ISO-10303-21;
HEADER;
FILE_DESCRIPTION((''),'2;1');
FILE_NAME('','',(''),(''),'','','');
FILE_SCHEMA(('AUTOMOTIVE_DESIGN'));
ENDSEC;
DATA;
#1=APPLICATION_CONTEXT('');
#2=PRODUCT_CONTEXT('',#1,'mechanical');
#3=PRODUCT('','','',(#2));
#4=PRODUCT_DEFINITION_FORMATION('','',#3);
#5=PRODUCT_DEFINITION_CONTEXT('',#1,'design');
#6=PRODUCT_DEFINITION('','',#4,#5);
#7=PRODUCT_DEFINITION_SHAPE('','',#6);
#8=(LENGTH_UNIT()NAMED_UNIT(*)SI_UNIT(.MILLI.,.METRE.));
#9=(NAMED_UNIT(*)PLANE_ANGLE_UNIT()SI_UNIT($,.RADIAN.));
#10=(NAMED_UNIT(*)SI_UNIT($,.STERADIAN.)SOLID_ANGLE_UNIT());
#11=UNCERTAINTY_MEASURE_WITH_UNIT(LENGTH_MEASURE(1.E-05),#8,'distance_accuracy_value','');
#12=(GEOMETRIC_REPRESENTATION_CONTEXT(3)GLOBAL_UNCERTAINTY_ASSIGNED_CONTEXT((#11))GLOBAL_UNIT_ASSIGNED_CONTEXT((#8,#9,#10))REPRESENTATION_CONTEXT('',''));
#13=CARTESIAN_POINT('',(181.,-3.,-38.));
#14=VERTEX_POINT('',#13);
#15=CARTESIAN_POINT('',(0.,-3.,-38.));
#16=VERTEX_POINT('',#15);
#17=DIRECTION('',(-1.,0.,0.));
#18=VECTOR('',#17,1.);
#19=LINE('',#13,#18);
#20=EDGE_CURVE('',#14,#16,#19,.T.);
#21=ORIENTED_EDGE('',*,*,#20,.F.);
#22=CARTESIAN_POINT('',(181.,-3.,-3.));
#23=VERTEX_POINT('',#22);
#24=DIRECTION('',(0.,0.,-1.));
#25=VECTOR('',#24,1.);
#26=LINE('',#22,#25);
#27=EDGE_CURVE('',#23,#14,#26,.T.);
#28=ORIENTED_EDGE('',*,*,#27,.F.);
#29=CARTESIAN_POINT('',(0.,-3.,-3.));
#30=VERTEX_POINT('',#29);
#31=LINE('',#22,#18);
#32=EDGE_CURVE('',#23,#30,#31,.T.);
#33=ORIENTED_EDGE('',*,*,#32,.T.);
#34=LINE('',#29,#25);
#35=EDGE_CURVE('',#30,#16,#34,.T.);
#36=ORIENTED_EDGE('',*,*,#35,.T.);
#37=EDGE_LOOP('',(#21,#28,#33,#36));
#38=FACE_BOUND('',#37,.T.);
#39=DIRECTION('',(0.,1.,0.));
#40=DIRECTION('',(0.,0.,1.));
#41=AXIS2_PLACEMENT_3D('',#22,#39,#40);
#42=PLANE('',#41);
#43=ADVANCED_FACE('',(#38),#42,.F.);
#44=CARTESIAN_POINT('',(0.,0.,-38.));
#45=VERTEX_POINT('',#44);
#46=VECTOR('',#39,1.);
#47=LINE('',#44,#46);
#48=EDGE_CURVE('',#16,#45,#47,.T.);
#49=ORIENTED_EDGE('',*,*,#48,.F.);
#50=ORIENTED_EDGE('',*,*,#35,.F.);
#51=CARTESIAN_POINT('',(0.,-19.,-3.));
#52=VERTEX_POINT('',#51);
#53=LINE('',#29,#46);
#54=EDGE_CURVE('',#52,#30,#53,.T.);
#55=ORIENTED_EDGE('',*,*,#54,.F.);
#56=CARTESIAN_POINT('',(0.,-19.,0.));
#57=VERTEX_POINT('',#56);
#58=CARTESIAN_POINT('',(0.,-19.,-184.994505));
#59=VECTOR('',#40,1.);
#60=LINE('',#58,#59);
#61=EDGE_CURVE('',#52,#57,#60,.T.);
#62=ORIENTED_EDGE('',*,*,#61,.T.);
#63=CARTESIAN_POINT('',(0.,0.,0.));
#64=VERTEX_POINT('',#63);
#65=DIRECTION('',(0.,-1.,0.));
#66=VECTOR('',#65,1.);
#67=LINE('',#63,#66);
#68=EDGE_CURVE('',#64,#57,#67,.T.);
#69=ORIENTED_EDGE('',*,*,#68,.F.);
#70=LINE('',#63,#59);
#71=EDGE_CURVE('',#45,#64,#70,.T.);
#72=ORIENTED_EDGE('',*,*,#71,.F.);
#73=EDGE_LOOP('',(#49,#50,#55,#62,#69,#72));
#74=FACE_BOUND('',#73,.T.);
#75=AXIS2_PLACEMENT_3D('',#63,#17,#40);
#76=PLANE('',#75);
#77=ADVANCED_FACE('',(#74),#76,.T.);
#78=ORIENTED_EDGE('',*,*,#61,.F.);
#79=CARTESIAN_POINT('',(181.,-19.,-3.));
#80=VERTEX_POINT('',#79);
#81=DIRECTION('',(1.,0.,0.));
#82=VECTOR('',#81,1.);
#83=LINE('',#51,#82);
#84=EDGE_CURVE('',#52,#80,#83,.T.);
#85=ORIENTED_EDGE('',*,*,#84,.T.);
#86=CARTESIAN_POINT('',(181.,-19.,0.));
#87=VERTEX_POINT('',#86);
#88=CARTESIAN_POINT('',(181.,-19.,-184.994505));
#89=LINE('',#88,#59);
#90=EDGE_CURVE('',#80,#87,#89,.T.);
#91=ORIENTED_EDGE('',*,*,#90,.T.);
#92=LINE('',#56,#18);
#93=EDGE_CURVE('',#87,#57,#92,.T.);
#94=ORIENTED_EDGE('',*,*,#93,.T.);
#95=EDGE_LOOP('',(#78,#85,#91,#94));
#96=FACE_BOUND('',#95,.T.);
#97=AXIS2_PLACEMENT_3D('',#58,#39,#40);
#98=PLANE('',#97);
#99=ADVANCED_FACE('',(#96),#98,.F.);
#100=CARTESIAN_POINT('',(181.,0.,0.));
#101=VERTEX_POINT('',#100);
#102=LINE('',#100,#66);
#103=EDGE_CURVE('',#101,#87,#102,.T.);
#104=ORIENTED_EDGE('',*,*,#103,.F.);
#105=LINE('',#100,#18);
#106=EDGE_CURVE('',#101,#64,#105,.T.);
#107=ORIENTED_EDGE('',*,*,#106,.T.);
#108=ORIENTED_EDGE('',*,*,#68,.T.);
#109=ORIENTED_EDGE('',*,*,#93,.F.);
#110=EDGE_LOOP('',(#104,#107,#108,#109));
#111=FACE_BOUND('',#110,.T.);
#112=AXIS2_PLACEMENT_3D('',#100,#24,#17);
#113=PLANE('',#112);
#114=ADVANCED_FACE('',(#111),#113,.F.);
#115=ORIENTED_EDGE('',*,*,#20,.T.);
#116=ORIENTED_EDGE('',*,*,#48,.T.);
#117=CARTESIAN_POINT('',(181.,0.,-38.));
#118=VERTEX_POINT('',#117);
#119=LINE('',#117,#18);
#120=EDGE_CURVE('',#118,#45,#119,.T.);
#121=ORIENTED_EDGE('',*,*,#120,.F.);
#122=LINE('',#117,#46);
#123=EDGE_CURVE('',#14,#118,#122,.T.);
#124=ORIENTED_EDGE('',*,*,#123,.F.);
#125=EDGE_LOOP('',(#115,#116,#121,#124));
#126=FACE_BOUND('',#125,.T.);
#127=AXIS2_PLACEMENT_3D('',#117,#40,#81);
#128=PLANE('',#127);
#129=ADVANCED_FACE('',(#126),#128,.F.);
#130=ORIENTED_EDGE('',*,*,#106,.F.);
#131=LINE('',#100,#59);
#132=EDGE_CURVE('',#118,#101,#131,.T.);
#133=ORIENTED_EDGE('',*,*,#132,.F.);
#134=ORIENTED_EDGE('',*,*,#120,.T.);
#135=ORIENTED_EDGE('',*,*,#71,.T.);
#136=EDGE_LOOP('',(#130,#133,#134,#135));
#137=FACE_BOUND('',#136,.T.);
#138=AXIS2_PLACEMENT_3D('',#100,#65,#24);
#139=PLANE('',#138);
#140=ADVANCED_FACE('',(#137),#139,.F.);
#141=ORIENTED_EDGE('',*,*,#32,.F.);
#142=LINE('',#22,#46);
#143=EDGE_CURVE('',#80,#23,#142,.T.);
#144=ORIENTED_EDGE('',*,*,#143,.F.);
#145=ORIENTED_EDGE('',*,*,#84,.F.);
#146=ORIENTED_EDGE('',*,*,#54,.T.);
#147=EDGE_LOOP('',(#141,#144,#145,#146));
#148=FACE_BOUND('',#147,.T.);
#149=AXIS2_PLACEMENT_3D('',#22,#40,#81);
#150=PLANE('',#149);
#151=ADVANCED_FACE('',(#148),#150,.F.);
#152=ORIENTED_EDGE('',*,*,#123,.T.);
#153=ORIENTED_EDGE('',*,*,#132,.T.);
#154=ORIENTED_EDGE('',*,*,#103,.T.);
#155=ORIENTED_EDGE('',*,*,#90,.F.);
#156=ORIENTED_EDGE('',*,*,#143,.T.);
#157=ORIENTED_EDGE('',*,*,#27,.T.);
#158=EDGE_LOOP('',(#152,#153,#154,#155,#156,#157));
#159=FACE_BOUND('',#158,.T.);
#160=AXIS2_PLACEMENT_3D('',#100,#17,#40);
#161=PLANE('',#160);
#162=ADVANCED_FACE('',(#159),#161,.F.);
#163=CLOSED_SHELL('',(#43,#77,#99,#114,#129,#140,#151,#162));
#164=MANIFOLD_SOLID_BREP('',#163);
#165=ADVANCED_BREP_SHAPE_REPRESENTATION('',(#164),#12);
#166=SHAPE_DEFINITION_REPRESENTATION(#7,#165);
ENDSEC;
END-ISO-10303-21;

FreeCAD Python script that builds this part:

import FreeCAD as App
import Part
import Sketcher

V = App.Vector
Q = App.Units.Quantity


def add_polygon(sketch, points):
    """Adds a closed chain of lines whose ends are joined by coincident constraints."""
    first, n = sketch.GeometryCount, len(points)
    for a, b in zip(points, points[1:] + points[:1]):
        sketch.addGeometry(Part.LineSegment(App.Vector(*a, 0), App.Vector(*b, 0)), False)
    for i in range(n):
        sketch.addConstraint(Sketcher.Constraint("Coincident", first + i, 2, first + (i + 1) % n, 1))

doc = App.newDocument("Part")
body = doc.addObject("PartDesign::Body", "Body")

sketch1 = body.newObject("Sketcher::SketchObject", "Sketch")
sketch1.AttachmentSupport = (doc.getObject("YZ_Plane"), [""])
sketch1.MapMode = "FlatFace"
add_polygon(sketch1, [(0, 0), (-38, 0), (-38, -3), (-3, -3), (-3, -38), (0, -38)])
sketch1.addConstraint([
    Sketcher.Constraint("Horizontal", 0),
    Sketcher.Constraint("Vertical", 1),
    Sketcher.Constraint("Horizontal", 2),
    Sketcher.Constraint("Vertical", 3),
    Sketcher.Constraint("Horizontal", 4),
    Sketcher.Constraint("Vertical", 5),
    Sketcher.Constraint("Coincident", 5, 2, -1, 1),
    Sketcher.Constraint("Equal", 4, 1),
    Sketcher.Constraint("Equal", 2, 3),
    Sketcher.Constraint("DistanceX", 0, 2, 0, 1, Q("38 mm")),
    Sketcher.Constraint("DistanceX", 2, 1, 2, 2, Q("35 mm")),
])
pad1 = body.newObject("PartDesign::Pad", "Pad")
pad1.Profile = sketch1
pad1.Length = 181

sketch2 = body.newObject("Sketcher::SketchObject", "Sketch001")
sketch2.AttachmentSupport = (doc.getObject("XY_Plane"), [""])
sketch2.MapMode = "FlatFace"
add_polygon(sketch2, [(0, -19), (0, -38), (181, -38), (181, -19)])
sketch2.addConstraint([
    Sketcher.Constraint("Vertical", 0),
    Sketcher.Constraint("Horizontal", 1),
    Sketcher.Constraint("Vertical", 2),
    Sketcher.Constraint("Horizontal", 3),
    Sketcher.Constraint("PointOnObject", 0, 2, -2),
    Sketcher.Constraint("DistanceX", 1, 1, 1, 2, Q("181 mm")),
    Sketcher.Constraint("DistanceY", 0, 2, 0, 1, Q("19 mm")),
    Sketcher.Constraint("DistanceY", 0, 2, -1, 1, Q("38 mm")),
])
pocket1 = body.newObject("PartDesign::Pocket", "Pocket")
pocket1.Profile = sketch2
pocket1.Length = 3

doc.recompute()
